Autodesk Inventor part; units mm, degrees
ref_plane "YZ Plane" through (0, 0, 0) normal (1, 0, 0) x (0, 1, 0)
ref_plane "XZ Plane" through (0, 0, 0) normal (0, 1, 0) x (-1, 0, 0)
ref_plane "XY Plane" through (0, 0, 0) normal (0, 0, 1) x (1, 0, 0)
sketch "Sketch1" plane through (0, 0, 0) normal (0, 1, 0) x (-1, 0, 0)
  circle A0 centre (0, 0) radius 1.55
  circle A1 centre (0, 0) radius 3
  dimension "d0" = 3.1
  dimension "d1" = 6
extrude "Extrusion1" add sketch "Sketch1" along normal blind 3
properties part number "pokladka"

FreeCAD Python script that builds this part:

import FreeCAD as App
import Part
import Sketcher

V = App.Vector

doc = App.newDocument("Part")
params = doc.addObject("Spreadsheet::Sheet", "Params")
for row, (alias, value) in enumerate([
    ("sketch1_diameter", "6 mm"),
    ("sketch1_diameter2", "3.1 mm"),
    ("pad1_length", "3 mm"),
], start=1):
    params.set(f"A{row}", alias)
    params.set(f"B{row}", "=" + value)
    params.setAlias(f"B{row}", alias)

body = doc.addObject("PartDesign::Body", "Body")

# Sketch on XZ plane
sketch1 = body.newObject("Sketcher::SketchObject", "Sketch")
sketch1.AttachmentSupport = (doc.getObject("XZ_Plane"), [""])
sketch1.MapMode = "FlatFace"
sketch1.addGeometry([
    Part.Circle(V(0, 0, 0), V(0, 0, 1), 3),
    Part.Circle(V(0, 0, 0), V(0, 0, 1), 1.6),
], False)
sketch1.addConstraint([
    Sketcher.Constraint("Coincident", 0, 3, -1, 1),
    Sketcher.Constraint("Coincident", 1, 3, -1, 1),
    Sketcher.Constraint("Diameter", 0, 6.0),
    Sketcher.Constraint("Diameter", 1, 3.1),
])
sketch1.setExpression("Constraints[2]", "Params.sketch1_diameter")
sketch1.setExpression("Constraints[3]", "Params.sketch1_diameter2")
pad1 = body.newObject("PartDesign::Pad", "Pad")
pad1.Profile = sketch1
pad1.setExpression("Length", "Params.pad1_length")
pad1.Reversed = True

doc.recompute()
